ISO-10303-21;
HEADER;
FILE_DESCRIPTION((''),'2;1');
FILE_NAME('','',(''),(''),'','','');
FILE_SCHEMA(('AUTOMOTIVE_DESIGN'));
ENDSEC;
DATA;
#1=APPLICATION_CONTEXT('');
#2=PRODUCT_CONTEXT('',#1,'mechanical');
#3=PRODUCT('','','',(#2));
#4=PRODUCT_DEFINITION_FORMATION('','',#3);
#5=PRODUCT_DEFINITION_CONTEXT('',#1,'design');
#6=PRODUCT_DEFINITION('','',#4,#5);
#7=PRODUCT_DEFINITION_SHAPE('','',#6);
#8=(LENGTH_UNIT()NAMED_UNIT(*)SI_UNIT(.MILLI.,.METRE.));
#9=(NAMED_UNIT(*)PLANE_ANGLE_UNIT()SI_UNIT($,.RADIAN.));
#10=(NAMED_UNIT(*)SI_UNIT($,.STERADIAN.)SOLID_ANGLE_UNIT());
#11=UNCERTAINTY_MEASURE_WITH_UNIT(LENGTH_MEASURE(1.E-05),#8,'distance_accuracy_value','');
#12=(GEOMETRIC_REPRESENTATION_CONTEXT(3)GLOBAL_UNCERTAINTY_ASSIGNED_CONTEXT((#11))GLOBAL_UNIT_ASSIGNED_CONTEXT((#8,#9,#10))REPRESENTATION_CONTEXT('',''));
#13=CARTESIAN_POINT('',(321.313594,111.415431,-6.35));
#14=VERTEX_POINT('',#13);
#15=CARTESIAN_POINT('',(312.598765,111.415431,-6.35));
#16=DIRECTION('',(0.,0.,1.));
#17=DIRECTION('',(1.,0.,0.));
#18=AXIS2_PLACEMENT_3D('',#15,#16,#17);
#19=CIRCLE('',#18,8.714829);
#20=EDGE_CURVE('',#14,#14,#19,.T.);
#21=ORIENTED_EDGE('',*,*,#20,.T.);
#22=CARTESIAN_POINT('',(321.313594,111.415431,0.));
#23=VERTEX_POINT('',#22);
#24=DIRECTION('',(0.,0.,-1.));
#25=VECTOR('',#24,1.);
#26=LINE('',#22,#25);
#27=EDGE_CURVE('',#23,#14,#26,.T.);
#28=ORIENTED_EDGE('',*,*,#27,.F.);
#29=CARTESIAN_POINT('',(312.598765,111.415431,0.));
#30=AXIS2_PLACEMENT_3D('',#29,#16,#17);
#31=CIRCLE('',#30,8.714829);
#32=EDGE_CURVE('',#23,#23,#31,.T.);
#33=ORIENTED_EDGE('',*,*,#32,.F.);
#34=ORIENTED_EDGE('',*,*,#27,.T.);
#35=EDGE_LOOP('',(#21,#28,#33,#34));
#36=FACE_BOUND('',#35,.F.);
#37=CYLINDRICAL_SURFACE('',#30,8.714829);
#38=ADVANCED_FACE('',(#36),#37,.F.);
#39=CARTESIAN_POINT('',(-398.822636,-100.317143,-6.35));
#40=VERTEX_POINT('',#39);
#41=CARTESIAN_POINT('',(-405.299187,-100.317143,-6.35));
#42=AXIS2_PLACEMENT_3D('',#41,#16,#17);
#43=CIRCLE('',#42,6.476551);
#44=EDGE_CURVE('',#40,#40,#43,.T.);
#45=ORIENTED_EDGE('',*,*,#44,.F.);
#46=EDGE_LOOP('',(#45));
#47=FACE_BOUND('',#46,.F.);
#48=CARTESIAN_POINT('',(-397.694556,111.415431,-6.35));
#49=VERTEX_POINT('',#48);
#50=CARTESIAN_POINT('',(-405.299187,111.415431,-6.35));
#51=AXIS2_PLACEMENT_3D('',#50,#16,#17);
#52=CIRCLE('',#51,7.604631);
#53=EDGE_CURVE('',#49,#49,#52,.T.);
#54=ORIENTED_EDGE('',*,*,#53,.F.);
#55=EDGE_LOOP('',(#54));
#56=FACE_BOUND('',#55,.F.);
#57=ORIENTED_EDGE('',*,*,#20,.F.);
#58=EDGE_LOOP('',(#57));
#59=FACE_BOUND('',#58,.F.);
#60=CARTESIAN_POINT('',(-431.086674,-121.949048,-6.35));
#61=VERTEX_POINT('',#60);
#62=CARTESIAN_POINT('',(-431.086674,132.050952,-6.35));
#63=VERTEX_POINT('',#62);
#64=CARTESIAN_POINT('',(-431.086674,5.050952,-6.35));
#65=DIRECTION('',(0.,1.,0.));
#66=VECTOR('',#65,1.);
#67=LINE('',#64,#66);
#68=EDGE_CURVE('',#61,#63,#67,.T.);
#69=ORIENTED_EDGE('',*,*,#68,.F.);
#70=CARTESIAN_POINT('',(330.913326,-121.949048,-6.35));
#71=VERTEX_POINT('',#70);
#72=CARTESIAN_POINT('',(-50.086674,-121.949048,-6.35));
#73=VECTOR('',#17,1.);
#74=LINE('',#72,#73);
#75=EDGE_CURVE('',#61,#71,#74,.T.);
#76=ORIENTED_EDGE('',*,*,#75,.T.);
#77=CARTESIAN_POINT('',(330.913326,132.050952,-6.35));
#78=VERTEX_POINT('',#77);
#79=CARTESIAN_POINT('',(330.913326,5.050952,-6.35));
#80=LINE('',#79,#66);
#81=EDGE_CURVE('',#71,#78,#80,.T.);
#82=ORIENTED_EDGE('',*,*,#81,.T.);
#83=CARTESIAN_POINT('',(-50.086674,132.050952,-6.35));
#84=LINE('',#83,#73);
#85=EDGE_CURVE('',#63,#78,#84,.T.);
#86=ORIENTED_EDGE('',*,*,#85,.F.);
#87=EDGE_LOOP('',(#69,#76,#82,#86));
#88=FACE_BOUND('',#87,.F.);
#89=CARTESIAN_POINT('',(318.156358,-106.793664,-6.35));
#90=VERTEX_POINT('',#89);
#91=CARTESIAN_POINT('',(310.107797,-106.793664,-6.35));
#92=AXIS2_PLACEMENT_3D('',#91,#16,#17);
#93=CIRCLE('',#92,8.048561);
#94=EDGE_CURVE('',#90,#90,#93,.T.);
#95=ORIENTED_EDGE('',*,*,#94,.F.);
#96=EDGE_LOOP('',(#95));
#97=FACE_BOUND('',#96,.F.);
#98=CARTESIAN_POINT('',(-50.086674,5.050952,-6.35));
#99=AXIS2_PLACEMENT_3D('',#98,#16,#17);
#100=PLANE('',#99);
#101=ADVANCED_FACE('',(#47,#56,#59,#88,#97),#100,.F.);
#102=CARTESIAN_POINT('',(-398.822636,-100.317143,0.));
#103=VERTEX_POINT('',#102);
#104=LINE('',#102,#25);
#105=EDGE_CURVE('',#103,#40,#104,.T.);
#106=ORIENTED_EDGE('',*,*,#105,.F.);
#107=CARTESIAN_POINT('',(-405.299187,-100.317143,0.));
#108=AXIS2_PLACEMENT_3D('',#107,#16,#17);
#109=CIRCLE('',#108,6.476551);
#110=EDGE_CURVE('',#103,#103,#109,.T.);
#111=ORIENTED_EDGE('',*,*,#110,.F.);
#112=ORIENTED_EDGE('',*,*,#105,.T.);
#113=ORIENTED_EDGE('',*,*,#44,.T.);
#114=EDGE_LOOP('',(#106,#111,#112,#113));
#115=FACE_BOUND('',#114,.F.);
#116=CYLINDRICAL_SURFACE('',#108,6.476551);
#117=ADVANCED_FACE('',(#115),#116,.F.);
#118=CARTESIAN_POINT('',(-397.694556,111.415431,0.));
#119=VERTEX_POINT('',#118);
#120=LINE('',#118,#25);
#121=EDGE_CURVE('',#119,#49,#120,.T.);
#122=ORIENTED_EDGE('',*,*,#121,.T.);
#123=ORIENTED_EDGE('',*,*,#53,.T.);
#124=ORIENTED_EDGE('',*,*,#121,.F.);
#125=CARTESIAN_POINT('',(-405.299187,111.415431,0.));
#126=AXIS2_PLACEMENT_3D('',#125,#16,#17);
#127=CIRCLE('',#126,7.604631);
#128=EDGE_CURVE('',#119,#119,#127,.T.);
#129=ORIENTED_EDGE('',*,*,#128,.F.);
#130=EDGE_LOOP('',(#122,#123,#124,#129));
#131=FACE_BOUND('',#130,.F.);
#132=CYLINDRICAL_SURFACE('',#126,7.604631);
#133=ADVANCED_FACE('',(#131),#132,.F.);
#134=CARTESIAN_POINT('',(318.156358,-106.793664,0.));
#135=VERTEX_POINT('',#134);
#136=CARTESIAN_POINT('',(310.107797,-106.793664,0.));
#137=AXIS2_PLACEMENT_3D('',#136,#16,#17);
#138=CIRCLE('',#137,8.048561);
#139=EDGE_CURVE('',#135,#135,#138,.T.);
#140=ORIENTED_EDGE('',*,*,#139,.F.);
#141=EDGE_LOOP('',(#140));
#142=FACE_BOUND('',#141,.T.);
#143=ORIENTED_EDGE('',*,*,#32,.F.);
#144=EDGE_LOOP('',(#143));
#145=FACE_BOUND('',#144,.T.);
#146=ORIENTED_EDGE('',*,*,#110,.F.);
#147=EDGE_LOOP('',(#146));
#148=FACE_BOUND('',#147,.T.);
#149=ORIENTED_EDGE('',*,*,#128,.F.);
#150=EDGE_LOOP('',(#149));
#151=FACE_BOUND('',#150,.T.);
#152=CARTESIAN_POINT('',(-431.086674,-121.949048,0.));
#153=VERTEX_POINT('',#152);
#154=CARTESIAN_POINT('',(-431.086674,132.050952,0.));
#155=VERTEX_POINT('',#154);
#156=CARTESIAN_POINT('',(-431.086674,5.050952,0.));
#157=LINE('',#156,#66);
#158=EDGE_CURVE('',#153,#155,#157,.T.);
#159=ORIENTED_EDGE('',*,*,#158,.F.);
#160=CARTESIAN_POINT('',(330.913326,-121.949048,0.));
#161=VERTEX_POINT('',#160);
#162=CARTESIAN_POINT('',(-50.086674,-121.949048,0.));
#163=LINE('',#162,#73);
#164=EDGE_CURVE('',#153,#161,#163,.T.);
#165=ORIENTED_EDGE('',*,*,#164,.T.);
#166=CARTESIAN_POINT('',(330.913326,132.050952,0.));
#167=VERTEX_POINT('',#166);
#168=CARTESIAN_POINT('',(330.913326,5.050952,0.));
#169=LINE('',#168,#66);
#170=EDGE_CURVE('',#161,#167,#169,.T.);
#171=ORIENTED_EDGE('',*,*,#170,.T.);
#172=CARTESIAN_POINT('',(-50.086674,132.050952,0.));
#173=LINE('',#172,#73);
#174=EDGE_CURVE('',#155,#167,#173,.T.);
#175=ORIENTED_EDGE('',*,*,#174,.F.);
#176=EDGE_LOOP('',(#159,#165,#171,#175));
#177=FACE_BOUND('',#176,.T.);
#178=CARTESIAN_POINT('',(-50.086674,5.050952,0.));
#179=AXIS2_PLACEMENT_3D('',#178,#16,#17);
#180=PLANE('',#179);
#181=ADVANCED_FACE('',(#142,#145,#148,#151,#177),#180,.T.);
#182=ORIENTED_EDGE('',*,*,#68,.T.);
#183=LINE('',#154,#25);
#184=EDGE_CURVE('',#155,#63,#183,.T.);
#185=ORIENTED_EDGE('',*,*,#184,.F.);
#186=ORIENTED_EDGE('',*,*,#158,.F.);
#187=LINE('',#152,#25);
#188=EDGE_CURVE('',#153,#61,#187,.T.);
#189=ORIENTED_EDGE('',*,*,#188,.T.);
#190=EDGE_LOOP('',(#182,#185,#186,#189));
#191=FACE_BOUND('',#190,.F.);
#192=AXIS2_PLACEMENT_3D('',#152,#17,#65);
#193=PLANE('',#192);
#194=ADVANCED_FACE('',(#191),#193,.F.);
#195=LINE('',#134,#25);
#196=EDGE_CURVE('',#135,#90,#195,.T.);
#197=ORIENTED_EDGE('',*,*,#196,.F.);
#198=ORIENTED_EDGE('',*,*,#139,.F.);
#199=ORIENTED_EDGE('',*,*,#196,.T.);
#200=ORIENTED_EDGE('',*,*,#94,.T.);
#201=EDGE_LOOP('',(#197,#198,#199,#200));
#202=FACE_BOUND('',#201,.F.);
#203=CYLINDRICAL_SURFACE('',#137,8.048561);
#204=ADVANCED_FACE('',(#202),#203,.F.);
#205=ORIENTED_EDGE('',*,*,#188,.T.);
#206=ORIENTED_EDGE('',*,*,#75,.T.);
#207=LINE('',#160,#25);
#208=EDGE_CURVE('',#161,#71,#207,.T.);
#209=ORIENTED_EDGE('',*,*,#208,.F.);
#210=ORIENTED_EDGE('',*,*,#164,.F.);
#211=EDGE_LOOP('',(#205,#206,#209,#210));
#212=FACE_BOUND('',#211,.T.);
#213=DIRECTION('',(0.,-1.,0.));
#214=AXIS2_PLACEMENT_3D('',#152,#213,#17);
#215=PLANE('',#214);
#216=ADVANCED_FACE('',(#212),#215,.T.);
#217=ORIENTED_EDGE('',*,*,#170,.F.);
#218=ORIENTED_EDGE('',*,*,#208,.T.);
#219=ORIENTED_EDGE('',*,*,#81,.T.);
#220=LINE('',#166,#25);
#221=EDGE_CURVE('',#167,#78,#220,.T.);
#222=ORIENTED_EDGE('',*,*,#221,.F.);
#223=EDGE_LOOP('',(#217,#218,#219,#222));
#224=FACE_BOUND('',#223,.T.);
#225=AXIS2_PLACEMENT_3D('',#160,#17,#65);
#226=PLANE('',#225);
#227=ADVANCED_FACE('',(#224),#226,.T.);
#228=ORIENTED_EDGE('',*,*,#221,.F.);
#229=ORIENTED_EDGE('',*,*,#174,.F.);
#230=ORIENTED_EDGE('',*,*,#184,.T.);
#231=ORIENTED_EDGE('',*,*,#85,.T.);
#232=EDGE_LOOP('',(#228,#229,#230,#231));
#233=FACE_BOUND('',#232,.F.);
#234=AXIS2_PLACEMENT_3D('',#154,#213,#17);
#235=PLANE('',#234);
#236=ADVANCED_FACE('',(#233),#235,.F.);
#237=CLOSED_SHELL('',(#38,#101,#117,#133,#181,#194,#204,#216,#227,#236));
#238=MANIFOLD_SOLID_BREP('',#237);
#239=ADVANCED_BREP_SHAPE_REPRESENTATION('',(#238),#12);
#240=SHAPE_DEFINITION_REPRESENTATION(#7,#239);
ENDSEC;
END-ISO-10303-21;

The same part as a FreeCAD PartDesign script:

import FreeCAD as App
import Part
import Sketcher

V = App.Vector
Q = App.Units.Quantity

doc = App.newDocument("Part")
body = doc.addObject("PartDesign::Body", "Body")

# Sketch on XY plane
sketch1 = body.newObject("Sketcher::SketchObject", "Sketch")
sketch1.AttachmentSupport = (doc.getObject("XY_Plane"), [""])
sketch1.MapMode = "FlatFace"
sketch1.addGeometry([
    Part.LineSegment(V(-431, 132, 0), V(-431, -122, 0)),
    Part.LineSegment(V(-431, -122, 0), V(331, -122, 0)),
    Part.LineSegment(V(331, -122, 0), V(331, 132, 0)),
    Part.LineSegment(V(331, 132, 0), V(-431, 132, 0)),
], False)
sketch1.addConstraint([
    Sketcher.Constraint("Coincident", 0, 2, 1, 1),
    Sketcher.Constraint("Coincident", 1, 2, 2, 1),
    Sketcher.Constraint("Coincident", 2, 2, 3, 1),
    Sketcher.Constraint("Coincident", 3, 2, 0, 1),
    Sketcher.Constraint("Vertical", 0),
    Sketcher.Constraint("Horizontal", 1),
    Sketcher.Constraint("Vertical", 2),
    Sketcher.Constraint("Horizontal", 3),
    Sketcher.Constraint("DistanceX", 1, 1, 1, 2, Q("30 in")),
    Sketcher.Constraint("DistanceY", 0, 2, 0, 1, Q("10 in")),
    Sketcher.Constraint("DistanceY", 0, 2, -1, 1, Q("121.949048 mm")),
    Sketcher.Constraint("DistanceX", 0, 2, -1, 1, Q("431.086674 mm")),
])
pad1 = body.newObject("PartDesign::Pad", "Pad")
pad1.Profile = sketch1
pad1.Length = Q("0.25 in")
pad1.Reversed = True

# Sketch on XY plane
sketch2 = body.newObject("Sketcher::SketchObject", "Sketch001")
sketch2.AttachmentSupport = (doc.getObject("XY_Plane"), [""])
sketch2.MapMode = "FlatFace"
sketch2.addGeometry([
    Part.Circle(V(-405, 111, 0), V(0, 0, 1), 8),
    Part.Circle(V(-405, -100, 0), V(0, 0, 1), 6),
    Part.Circle(V(310, -107, 0), V(0, 0, 1), 8),
    Part.Circle(V(313, 111, 0), V(0, 0, 1), 9),
], False)
sketch2.addConstraint([
    Sketcher.Constraint("Horizontal", 0, 3, 3, 3),
    Sketcher.Constraint("Vertical", 0, 3, 1, 3),
    Sketcher.Constraint("Diameter", 2, Q("16.097122 mm")),
    Sketcher.Constraint("Diameter", 3, Q("17.429658 mm")),
    Sketcher.Constraint("Diameter", 0, Q("15.209262 mm")),
    Sketcher.Constraint("Diameter", 1, Q("12.953102 mm")),
    Sketcher.Constraint("DistanceY", -1, 1, 0, 3, Q("111.415431 mm")),
    Sketcher.Constraint("DistanceY", 2, 3, 1, 3, Q("6.476521 mm")),
    Sketcher.Constraint("DistanceX", 2, 3, 3, 3, Q("2.490968 mm")),
    Sketcher.Constraint("DistanceX", 0, 3, 3, 3, Q("717.897952 mm")),
    Sketcher.Constraint("DistanceX", 0, 3, -1, 1, Q("405.299187 mm")),
    Sketcher.Constraint("DistanceY", 1, 3, -1, 1, Q("100.317143 mm")),
])
pocket1 = body.newObject("PartDesign::Pocket", "Pocket")
pocket1.Profile = sketch2
pocket1.Length = Q("1 in")

doc.recompute()
